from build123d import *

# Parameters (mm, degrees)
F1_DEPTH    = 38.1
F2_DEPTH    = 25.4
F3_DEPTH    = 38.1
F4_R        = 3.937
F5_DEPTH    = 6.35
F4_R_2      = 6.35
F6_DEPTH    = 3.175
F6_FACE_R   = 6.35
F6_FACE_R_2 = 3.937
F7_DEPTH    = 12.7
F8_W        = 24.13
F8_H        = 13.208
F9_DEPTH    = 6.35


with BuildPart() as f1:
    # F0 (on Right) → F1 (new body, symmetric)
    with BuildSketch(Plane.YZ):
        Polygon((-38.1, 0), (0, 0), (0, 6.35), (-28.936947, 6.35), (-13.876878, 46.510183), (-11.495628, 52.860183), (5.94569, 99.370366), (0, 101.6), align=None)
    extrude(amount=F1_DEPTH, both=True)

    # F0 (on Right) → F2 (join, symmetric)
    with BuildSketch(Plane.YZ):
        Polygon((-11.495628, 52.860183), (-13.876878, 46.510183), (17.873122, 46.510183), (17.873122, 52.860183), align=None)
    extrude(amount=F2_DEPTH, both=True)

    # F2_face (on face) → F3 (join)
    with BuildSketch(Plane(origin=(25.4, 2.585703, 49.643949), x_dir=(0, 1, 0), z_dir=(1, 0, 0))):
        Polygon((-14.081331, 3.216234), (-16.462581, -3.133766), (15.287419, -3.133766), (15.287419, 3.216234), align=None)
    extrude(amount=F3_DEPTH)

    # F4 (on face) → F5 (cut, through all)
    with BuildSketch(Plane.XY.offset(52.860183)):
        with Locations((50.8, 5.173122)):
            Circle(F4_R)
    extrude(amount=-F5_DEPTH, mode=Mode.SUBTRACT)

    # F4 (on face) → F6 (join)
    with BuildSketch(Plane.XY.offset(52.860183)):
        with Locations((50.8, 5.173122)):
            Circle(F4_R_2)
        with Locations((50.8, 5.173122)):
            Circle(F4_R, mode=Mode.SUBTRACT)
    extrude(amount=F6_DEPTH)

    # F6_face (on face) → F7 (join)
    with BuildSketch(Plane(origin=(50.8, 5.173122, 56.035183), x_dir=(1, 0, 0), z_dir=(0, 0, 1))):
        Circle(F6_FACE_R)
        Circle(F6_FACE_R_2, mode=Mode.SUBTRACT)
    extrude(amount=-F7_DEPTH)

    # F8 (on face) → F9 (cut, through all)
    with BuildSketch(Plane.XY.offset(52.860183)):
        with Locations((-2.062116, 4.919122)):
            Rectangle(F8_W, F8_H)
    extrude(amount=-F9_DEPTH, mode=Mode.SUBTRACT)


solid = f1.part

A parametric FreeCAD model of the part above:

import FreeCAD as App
import Part
import Sketcher
from FreeCAD import Vector
Q = App.Units.Quantity

doc = App.newDocument("Part")
body = doc.addObject("PartDesign::Body", "Body")

sketch1 = doc.addObject("Sketcher::SketchObject", "Sketch")
body.addObject(sketch1)
sketch1.AttachmentSupport = (doc.YZ_Plane, [""])
sketch1.MapMode = "FlatFace"
sketch1.addGeometry([
    Part.LineSegment(Vector(-38, 0, 0), Vector(0, 0, 0)),
    Part.LineSegment(Vector(0, 0, 0), Vector(0, 6, 0)),
    Part.LineSegment(Vector(0, 6, 0), Vector(-29, 6, 0)),
    Part.LineSegment(Vector(-29, 6, 0), Vector(-14, 47, 0)),
    Part.LineSegment(Vector(-14, 47, 0), Vector(-11, 53, 0)),
    Part.LineSegment(Vector(-11, 53, 0), Vector(6, 99, 0)),
    Part.LineSegment(Vector(6, 99, 0), Vector(0, 102, 0)),
    Part.LineSegment(Vector(0, 102, 0), Vector(-38, 0, 0)),
], False)
sketch1.addConstraint([
    Sketcher.Constraint("Coincident", 0, 2, 1, 1),
    Sketcher.Constraint("Coincident", 1, 2, 2, 1),
    Sketcher.Constraint("Coincident", 2, 2, 3, 1),
    Sketcher.Constraint("Coincident", 3, 2, 4, 1),
    Sketcher.Constraint("Coincident", 4, 2, 5, 1),
    Sketcher.Constraint("Coincident", 5, 2, 6, 1),
    Sketcher.Constraint("Coincident", 6, 2, 7, 1),
    Sketcher.Constraint("Coincident", 7, 2, 0, 1),
    Sketcher.Constraint("Horizontal", 0),
    Sketcher.Constraint("Vertical", 1),
    Sketcher.Constraint("Horizontal", 2),
    Sketcher.Constraint("Coincident", 0, 2, -1, 1),
    Sketcher.Constraint("PointOnObject", 6, 2, -2),
    Sketcher.Constraint("Parallel", 3, 4),
    Sketcher.Constraint("Parallel", 4, 5),
    Sketcher.Constraint("Perpendicular", 5, 6),
    Sketcher.Constraint("Perpendicular", 6, 7),
    Sketcher.Constraint("DistanceX", 0, 1, 0, 2, Q("1.5 in")),
    Sketcher.Constraint("DistanceY", -1, 1, 6, 2, Q("4 in")),
    Sketcher.Constraint("DistanceY", 1, 1, 1, 2, Q("0.25 in")),
    Sketcher.Constraint("Distance", 6, Q("0.25 in")),
    Sketcher.Constraint("DistanceY", 3, 2, 4, 2, Q("0.25 in")),
    Sketcher.Constraint("DistanceX", 2, 2, 3, 2, 15.060069),
])
pad1 = doc.addObject("PartDesign::Pad", "Pad")
body.addObject(pad1)
pad1.Profile = sketch1
pad1.Length = Q("3 in")
pad1.Midplane = True

sketch2 = doc.addObject("Sketcher::SketchObject", "Sketch001")
body.addObject(sketch2)
sketch2.AttachmentSupport = (doc.YZ_Plane, [""])
sketch2.MapMode = "FlatFace"
sketch2.addGeometry([
    Part.LineSegment(Vector(-11, 53, 0), Vector(-14, 47, 0)),
    Part.LineSegment(Vector(-14, 47, 0), Vector(18, 47, 0)),
    Part.LineSegment(Vector(18, 47, 0), Vector(18, 53, 0)),
    Part.LineSegment(Vector(18, 53, 0), Vector(-11, 53, 0)),
], False)
sketch2.addConstraint([
    Sketcher.Constraint("Coincident", 0, 2, 1, 1),
    Sketcher.Constraint("Coincident", 1, 2, 2, 1),
    Sketcher.Constraint("Coincident", 2, 2, 3, 1),
    Sketcher.Constraint("Coincident", 3, 2, 0, 1),
    Sketcher.Constraint("Horizontal", 1),
    Sketcher.Constraint("Vertical", 2),
    Sketcher.Constraint("Horizontal", 3),
    Sketcher.Constraint("DistanceX", 1, 1, 1, 2, Q("1.25 in")),
    Sketcher.Constraint("DistanceY", 2, 1, 2, 2, Q("0.25 in")),
    Sketcher.Constraint("DistanceX", 3, 2, 3, 1, Q("1.15625 in")),
    Sketcher.Constraint("DistanceX", -1, 1, 1, 2, 17.873122),
    Sketcher.Constraint("DistanceY", -1, 1, 0, 2, 46.510183),
])
pad2 = doc.addObject("PartDesign::Pad", "Pad001")
body.addObject(pad2)
pad2.Profile = sketch2
pad2.Length = Q("2 in")
pad2.Midplane = True

sketch3 = doc.addObject("Sketcher::SketchObject", "Sketch002")
body.addObject(sketch3)
sketch3.AttachmentSupport = (doc.YZ_Plane, [""])
sketch3.MapMode = "FlatFace"
sketch3.AttachmentOffset = App.Placement(Vector(0, 0, 1 * 25.4), App.Rotation())
sketch3.addGeometry([
    Part.LineSegment(Vector(-11, 53, 0), Vector(-14, 47, 0)),
    Part.LineSegment(Vector(-14, 47, 0), Vector(18, 47, 0)),
    Part.LineSegment(Vector(18, 47, 0), Vector(18, 53, 0)),
    Part.LineSegment(Vector(18, 53, 0), Vector(-11, 53, 0)),
], False)
sketch3.addConstraint([
    Sketcher.Constraint("Coincident", 0, 2, 1, 1),
    Sketcher.Constraint("Coincident", 1, 2, 2, 1),
    Sketcher.Constraint("Coincident", 2, 2, 3, 1),
    Sketcher.Constraint("Coincident", 3, 2, 0, 1),
    Sketcher.Constraint("Horizontal", 1),
    Sketcher.Constraint("Vertical", 2),
    Sketcher.Constraint("Horizontal", 3),
    Sketcher.Constraint("DistanceX", 1, 1, 1, 2, Q("1.25 in")),
    Sketcher.Constraint("DistanceY", 2, 1, 2, 2, Q("0.25 in")),
    Sketcher.Constraint("DistanceX", 3, 2, 3, 1, Q("1.15625 in")),
    Sketcher.Constraint("DistanceX", -1, 1, 1, 2, 17.873122),
    Sketcher.Constraint("DistanceY", -1, 1, 0, 2, 46.510183),
])
pad3 = doc.addObject("PartDesign::Pad", "Pad002")
body.addObject(pad3)
pad3.Profile = sketch3
pad3.Length = Q("1.5 in")

sketch4 = doc.addObject("Sketcher::SketchObject", "Sketch003")
body.addObject(sketch4)
sketch4.AttachmentSupport = (doc.XY_Plane, [""])
sketch4.MapMode = "FlatFace"
sketch4.AttachmentOffset = App.Placement(Vector(0, 0, 52.860183), App.Rotation())
sketch4.addGeometry(Part.Circle(Vector(50.8, 5.2, 0), Vector(0, 0, 1), 3.9), False)
sketch4.addConstraint([
    Sketcher.Constraint("Diameter", 0, Q("0.31 in")),
    Sketcher.Constraint("DistanceX", -1, 1, 0, 3, Q("2 in")),
    Sketcher.Constraint("DistanceY", -1, 1, 0, 3, 5.173122),
])
pocket1 = doc.addObject("PartDesign::Pocket", "Pocket")
body.addObject(pocket1)
pocket1.Profile = sketch4
pocket1.Type = "ThroughAll"

sketch5 = doc.addObject("Sketcher::SketchObject", "Sketch004")
body.addObject(sketch5)
sketch5.AttachmentSupport = (doc.XY_Plane, [""])
sketch5.MapMode = "FlatFace"
sketch5.AttachmentOffset = App.Placement(Vector(0, 0, 52.860183), App.Rotation())
sketch5.addGeometry([
    Part.Circle(Vector(50.8, 5.2, 0), Vector(0, 0, 1), 6.3),
    Part.Circle(Vector(50.8, 5.2, 0), Vector(0, 0, 1), 3.9),
], False)
sketch5.addConstraint([
    Sketcher.Constraint("Coincident", 1, 3, 0, 3),
    Sketcher.Constraint("Diameter", 0, Q("0.5 in")),
    Sketcher.Constraint("Diameter", 1, Q("0.31 in")),
    Sketcher.Constraint("DistanceX", -1, 1, 0, 3, Q("2 in")),
    Sketcher.Constraint("DistanceY", -1, 1, 0, 3, 5.173122),
])
pad4 = doc.addObject("PartDesign::Pad", "Pad003")
body.addObject(pad4)
pad4.Profile = sketch5
pad4.Length = Q("0.125 in")

sketch6 = doc.addObject("Sketcher::SketchObject", "Sketch005")
body.addObject(sketch6)
sketch6.AttachmentSupport = (doc.XY_Plane, [""])
sketch6.MapMode = "FlatFace"
sketch6.AttachmentOffset = App.Placement(Vector(0, 0, 56.035183), App.Rotation())
sketch6.addGeometry([
    Part.Circle(Vector(50.8, 5.2, 0), Vector(0, 0, 1), 6.3),
    Part.Circle(Vector(50.8, 5.2, 0), Vector(0, 0, 1), 3.9),
], False)
sketch6.addConstraint([
    Sketcher.Constraint("Coincident", 1, 3, 0, 3),
    Sketcher.Constraint("Diameter", 0, Q("0.5 in")),
    Sketcher.Constraint("Diameter", 1, Q("0.31 in")),
    Sketcher.Constraint("DistanceX", -1, 1, 0, 3, Q("2 in")),
    Sketcher.Constraint("DistanceY", -1, 1, 0, 3, 5.173122),
])
pad5 = doc.addObject("PartDesign::Pad", "Pad004")
body.addObject(pad5)
pad5.Profile = sketch6
pad5.Length = Q("0.5 in")
pad5.Reversed = True

sketch7 = doc.addObject("Sketcher::SketchObject", "Sketch006")
body.addObject(sketch7)
sketch7.AttachmentSupport = (doc.XY_Plane, [""])
sketch7.MapMode = "FlatFace"
sketch7.AttachmentOffset = App.Placement(Vector(0, 0, 52.860183), App.Rotation())
sketch7.addGeometry([
    Part.LineSegment(Vector(-14, 12, 0), Vector(-14, -2, 0)),
    Part.LineSegment(Vector(-14, -2, 0), Vector(10, -2, 0)),
    Part.LineSegment(Vector(10, -2, 0), Vector(10, 12, 0)),
    Part.LineSegment(Vector(10, 12, 0), Vector(-14, 12, 0)),
], False)
sketch7.addConstraint([
    Sketcher.Constraint("Coincident", 0, 2, 1, 1),
    Sketcher.Constraint("Coincident", 1, 2, 2, 1),
    Sketcher.Constraint("Coincident", 2, 2, 3, 1),
    Sketcher.Constraint("Coincident", 3, 2, 0, 1),
    Sketcher.Constraint("Vertical", 0),
    Sketcher.Constraint("Horizontal", 1),
    Sketcher.Constraint("Vertical", 2),
    Sketcher.Constraint("Horizontal", 3),
    Sketcher.Constraint("DistanceX", 1, 1, 1, 2, Q("0.95 in")),
    Sketcher.Constraint("DistanceY", 0, 2, 0, 1, Q("0.52 in")),
    Sketcher.Constraint("DistanceY", 0, 2, -1, 1, 1.684878),
    Sketcher.Constraint("DistanceX", 0, 2, -1, 1, 14.127116),
])
pocket2 = doc.addObject("PartDesign::Pocket", "Pocket001")
body.addObject(pocket2)
pocket2.Profile = sketch7
pocket2.Length = Q("0.25 in")

doc.recompute()
